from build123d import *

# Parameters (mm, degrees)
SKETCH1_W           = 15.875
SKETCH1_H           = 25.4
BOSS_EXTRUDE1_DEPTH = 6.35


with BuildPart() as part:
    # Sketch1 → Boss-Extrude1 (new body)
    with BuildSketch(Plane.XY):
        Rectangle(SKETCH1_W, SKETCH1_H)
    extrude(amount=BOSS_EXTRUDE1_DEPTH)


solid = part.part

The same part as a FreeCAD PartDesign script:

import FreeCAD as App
import Part
import Sketcher

V = App.Vector
Q = App.Units.Quantity

doc = App.newDocument("Part")
body = doc.addObject("PartDesign::Body", "Body")

sketch1 = body.newObject("Sketcher::SketchObject", "Sketch")
sketch1.AttachmentSupport = (doc.getObject("XY_Plane"), [""])
sketch1.MapMode = "FlatFace"
sketch1.addGeometry([
    Part.LineSegment(V(-8, 13, 0), V(-8, -13, 0)),
    Part.LineSegment(V(-8, -13, 0), V(8, -13, 0)),
    Part.LineSegment(V(8, -13, 0), V(8, 13, 0)),
    Part.LineSegment(V(8, 13, 0), V(-8, 13, 0)),
], False)
sketch1.addConstraint([
    Sketcher.Constraint("Coincident", 0, 2, 1, 1),
    Sketcher.Constraint("Coincident", 1, 2, 2, 1),
    Sketcher.Constraint("Coincident", 2, 2, 3, 1),
    Sketcher.Constraint("Coincident", 3, 2, 0, 1),
    Sketcher.Constraint("Vertical", 0),
    Sketcher.Constraint("Horizontal", 1),
    Sketcher.Constraint("Vertical", 2),
    Sketcher.Constraint("Horizontal", 3),
    Sketcher.Constraint("Symmetric", 0, 2, 2, 2, -1, 1),
    Sketcher.Constraint("DistanceY", 0, 2, 0, 1, Q("1 in")),
    Sketcher.Constraint("DistanceX", 1, 1, 1, 2, Q("0.625 in")),
])
pad1 = body.newObject("PartDesign::Pad", "Pad")
pad1.Profile = sketch1
pad1.Length = Q("0.25 in")

doc.recompute()
